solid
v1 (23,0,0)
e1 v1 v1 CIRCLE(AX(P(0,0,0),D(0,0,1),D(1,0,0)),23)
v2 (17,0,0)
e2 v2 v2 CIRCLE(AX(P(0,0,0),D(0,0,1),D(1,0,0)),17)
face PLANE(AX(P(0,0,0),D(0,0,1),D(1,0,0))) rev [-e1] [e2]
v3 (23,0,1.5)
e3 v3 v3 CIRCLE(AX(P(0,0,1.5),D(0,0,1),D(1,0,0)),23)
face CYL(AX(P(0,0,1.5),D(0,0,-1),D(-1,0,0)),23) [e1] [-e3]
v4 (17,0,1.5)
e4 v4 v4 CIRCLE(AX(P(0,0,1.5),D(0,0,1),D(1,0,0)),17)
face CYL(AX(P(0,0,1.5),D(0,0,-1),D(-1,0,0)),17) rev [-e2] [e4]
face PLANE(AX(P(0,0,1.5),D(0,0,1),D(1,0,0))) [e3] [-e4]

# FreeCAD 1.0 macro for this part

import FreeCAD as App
import Part
import Sketcher
from FreeCAD import Vector
Q = App.Units.Quantity

doc = App.newDocument("Part")
body = doc.addObject("PartDesign::Body", "Body")

# Sketch on XY plane
sketch1 = doc.addObject("Sketcher::SketchObject", "Sketch")
body.addObject(sketch1)
sketch1.AttachmentSupport = (doc.XY_Plane, [""])
sketch1.MapMode = "FlatFace"
sketch1.addGeometry([
    Part.Circle(Vector(0, 0, 0), Vector(0, 0, 1), 23),
    Part.Circle(Vector(0, 0, 0), Vector(0, 0, 1), 17),
], False)
sketch1.addConstraint([
    Sketcher.Constraint("Coincident", 0, 3, -1, 1),
    Sketcher.Constraint("Coincident", 1, 3, -1, 1),
    Sketcher.Constraint("Diameter", 0, Q("46 mm")),
    Sketcher.Constraint("Diameter", 1, Q("34 mm")),
])
pad1 = doc.addObject("PartDesign::Pad", "Pad")
body.addObject(pad1)
pad1.Profile = sketch1
pad1.Length = 1.5

doc.recompute()
